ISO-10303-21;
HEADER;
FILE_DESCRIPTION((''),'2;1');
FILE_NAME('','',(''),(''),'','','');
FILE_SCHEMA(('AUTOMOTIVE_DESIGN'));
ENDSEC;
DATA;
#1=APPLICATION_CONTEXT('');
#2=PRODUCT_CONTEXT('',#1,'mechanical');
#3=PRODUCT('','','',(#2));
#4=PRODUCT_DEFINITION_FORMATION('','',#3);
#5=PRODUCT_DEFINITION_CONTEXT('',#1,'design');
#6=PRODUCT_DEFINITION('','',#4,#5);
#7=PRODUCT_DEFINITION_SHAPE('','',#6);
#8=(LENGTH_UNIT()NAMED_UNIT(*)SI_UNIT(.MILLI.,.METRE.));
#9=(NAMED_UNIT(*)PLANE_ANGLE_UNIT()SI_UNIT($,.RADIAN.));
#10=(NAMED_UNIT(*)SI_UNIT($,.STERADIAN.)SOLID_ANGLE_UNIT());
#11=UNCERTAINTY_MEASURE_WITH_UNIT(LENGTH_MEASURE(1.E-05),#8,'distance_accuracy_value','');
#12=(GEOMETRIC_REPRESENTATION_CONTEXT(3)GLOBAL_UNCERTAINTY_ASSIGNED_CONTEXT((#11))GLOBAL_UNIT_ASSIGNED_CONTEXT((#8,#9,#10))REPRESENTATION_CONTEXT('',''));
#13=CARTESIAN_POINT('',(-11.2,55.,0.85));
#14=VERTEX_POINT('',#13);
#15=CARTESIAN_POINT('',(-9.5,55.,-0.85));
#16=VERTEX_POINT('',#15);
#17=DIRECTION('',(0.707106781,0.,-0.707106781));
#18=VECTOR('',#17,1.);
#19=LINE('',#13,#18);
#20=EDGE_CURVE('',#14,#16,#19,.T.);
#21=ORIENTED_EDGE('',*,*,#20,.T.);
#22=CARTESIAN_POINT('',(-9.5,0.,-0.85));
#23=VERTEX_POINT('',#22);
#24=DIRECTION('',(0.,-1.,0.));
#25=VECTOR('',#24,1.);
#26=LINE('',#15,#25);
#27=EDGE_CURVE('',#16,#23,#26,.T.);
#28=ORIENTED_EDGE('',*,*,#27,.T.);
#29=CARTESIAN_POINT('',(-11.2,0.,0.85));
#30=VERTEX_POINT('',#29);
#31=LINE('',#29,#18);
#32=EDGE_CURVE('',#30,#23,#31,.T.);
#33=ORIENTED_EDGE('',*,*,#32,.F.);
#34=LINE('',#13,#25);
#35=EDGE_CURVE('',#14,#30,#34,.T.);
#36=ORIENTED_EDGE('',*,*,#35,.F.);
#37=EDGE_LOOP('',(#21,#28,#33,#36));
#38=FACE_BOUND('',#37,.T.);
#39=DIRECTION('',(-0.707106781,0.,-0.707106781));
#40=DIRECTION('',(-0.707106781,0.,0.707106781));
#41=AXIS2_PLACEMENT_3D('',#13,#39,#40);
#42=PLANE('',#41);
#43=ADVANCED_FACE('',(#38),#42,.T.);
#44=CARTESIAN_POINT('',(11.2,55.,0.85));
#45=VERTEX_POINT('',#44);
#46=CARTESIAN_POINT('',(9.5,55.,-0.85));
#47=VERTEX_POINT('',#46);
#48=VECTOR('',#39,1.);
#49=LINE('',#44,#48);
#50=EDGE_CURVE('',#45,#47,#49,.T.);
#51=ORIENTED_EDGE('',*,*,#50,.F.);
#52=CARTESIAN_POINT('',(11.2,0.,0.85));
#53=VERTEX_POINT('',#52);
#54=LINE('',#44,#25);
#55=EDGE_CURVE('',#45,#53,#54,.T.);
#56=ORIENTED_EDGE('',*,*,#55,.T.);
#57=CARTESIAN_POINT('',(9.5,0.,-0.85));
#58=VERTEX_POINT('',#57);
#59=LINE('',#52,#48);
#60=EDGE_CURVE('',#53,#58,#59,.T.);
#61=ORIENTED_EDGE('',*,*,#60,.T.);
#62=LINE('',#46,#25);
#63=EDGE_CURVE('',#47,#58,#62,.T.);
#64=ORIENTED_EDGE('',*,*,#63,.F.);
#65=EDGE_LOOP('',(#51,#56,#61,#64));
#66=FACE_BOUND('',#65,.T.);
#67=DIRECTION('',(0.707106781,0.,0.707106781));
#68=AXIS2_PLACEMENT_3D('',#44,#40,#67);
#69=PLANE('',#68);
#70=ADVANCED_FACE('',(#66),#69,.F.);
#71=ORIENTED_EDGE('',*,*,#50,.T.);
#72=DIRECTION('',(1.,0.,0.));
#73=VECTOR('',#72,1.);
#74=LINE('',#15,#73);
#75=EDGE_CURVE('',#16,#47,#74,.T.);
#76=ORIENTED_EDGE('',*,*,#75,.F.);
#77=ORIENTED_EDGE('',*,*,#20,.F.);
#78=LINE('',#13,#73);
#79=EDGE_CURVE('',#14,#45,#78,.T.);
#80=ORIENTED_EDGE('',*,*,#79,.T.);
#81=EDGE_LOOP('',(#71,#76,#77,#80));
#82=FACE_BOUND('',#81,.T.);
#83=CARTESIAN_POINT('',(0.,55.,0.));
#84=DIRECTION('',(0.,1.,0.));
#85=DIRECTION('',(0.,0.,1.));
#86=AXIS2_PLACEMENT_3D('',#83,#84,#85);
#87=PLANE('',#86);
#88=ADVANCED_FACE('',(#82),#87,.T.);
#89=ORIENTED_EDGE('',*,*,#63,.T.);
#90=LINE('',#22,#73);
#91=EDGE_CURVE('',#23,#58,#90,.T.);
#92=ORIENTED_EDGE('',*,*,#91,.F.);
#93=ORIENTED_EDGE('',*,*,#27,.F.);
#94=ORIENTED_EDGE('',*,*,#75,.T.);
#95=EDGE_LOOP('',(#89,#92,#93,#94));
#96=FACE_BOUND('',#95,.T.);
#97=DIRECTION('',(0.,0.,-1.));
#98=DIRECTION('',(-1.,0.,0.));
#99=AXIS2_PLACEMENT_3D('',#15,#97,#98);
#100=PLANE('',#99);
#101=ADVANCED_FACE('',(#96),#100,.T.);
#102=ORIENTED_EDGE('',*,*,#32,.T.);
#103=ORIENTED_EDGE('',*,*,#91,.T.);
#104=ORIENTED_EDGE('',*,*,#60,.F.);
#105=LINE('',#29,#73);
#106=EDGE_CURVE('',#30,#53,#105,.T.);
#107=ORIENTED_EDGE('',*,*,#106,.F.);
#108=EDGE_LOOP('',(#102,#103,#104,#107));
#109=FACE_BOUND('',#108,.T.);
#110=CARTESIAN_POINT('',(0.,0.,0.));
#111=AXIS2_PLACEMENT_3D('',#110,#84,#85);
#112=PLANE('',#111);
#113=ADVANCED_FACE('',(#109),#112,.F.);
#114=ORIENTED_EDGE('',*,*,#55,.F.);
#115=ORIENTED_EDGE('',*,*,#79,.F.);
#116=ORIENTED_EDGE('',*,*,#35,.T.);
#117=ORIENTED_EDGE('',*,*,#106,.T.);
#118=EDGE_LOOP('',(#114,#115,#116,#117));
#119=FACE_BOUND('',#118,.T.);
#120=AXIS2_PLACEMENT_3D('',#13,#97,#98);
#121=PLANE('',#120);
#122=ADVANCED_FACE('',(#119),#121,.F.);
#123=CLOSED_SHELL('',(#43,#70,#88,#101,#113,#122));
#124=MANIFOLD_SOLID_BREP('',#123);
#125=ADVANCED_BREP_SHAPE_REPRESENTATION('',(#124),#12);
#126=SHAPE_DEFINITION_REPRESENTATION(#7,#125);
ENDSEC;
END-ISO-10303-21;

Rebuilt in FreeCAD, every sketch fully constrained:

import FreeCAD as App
import Part
import Sketcher

V = App.Vector


def add_polygon(sketch, points):
    """Adds a closed chain of lines whose ends are joined by coincident constraints."""
    first, n = sketch.GeometryCount, len(points)
    for a, b in zip(points, points[1:] + points[:1]):
        sketch.addGeometry(Part.LineSegment(App.Vector(*a, 0), App.Vector(*b, 0)), False)
    for i in range(n):
        sketch.addConstraint(Sketcher.Constraint("Coincident", first + i, 2, first + (i + 1) % n, 1))

doc = App.newDocument("Part")
body = doc.addObject("PartDesign::Body", "Body")

# Sketch on XZ plane
sketch1 = body.newObject("Sketcher::SketchObject", "Sketch")
sketch1.AttachmentSupport = (doc.getObject("XZ_Plane"), [""])
sketch1.MapMode = "FlatFace"
add_polygon(sketch1, [(-9.5, -0.8), (-11.2, 0.8), (11.2, 0.8), (9.5, -0.8)])  # lines 0-3
sketch1.addConstraint(Sketcher.Constraint("Horizontal", 1))
sketch1.addConstraint(Sketcher.Constraint("Horizontal", 3))
sketch1.addConstraint(Sketcher.Constraint("Perpendicular", 0, 2))
sketch1.addConstraint(Sketcher.Constraint("Equal", 0, 2))
sketch1.addConstraint(Sketcher.Constraint("DistanceX", 3, 2, 3, 1, 19.0))
sketch1.addConstraint(Sketcher.Constraint("DistanceX", 1, 1, 1, 2, 22.4))
sketch1.addConstraint(Sketcher.Constraint("DistanceX", 0, 2, -1, 1, 11.2))
sketch1.addConstraint(Sketcher.Constraint("DistanceY", -1, 1, 0, 2, 0.85))
pad1 = body.newObject("PartDesign::Pad", "Pad")
pad1.Profile = sketch1
pad1.Length = 55
pad1.Reversed = True

doc.recompute()
